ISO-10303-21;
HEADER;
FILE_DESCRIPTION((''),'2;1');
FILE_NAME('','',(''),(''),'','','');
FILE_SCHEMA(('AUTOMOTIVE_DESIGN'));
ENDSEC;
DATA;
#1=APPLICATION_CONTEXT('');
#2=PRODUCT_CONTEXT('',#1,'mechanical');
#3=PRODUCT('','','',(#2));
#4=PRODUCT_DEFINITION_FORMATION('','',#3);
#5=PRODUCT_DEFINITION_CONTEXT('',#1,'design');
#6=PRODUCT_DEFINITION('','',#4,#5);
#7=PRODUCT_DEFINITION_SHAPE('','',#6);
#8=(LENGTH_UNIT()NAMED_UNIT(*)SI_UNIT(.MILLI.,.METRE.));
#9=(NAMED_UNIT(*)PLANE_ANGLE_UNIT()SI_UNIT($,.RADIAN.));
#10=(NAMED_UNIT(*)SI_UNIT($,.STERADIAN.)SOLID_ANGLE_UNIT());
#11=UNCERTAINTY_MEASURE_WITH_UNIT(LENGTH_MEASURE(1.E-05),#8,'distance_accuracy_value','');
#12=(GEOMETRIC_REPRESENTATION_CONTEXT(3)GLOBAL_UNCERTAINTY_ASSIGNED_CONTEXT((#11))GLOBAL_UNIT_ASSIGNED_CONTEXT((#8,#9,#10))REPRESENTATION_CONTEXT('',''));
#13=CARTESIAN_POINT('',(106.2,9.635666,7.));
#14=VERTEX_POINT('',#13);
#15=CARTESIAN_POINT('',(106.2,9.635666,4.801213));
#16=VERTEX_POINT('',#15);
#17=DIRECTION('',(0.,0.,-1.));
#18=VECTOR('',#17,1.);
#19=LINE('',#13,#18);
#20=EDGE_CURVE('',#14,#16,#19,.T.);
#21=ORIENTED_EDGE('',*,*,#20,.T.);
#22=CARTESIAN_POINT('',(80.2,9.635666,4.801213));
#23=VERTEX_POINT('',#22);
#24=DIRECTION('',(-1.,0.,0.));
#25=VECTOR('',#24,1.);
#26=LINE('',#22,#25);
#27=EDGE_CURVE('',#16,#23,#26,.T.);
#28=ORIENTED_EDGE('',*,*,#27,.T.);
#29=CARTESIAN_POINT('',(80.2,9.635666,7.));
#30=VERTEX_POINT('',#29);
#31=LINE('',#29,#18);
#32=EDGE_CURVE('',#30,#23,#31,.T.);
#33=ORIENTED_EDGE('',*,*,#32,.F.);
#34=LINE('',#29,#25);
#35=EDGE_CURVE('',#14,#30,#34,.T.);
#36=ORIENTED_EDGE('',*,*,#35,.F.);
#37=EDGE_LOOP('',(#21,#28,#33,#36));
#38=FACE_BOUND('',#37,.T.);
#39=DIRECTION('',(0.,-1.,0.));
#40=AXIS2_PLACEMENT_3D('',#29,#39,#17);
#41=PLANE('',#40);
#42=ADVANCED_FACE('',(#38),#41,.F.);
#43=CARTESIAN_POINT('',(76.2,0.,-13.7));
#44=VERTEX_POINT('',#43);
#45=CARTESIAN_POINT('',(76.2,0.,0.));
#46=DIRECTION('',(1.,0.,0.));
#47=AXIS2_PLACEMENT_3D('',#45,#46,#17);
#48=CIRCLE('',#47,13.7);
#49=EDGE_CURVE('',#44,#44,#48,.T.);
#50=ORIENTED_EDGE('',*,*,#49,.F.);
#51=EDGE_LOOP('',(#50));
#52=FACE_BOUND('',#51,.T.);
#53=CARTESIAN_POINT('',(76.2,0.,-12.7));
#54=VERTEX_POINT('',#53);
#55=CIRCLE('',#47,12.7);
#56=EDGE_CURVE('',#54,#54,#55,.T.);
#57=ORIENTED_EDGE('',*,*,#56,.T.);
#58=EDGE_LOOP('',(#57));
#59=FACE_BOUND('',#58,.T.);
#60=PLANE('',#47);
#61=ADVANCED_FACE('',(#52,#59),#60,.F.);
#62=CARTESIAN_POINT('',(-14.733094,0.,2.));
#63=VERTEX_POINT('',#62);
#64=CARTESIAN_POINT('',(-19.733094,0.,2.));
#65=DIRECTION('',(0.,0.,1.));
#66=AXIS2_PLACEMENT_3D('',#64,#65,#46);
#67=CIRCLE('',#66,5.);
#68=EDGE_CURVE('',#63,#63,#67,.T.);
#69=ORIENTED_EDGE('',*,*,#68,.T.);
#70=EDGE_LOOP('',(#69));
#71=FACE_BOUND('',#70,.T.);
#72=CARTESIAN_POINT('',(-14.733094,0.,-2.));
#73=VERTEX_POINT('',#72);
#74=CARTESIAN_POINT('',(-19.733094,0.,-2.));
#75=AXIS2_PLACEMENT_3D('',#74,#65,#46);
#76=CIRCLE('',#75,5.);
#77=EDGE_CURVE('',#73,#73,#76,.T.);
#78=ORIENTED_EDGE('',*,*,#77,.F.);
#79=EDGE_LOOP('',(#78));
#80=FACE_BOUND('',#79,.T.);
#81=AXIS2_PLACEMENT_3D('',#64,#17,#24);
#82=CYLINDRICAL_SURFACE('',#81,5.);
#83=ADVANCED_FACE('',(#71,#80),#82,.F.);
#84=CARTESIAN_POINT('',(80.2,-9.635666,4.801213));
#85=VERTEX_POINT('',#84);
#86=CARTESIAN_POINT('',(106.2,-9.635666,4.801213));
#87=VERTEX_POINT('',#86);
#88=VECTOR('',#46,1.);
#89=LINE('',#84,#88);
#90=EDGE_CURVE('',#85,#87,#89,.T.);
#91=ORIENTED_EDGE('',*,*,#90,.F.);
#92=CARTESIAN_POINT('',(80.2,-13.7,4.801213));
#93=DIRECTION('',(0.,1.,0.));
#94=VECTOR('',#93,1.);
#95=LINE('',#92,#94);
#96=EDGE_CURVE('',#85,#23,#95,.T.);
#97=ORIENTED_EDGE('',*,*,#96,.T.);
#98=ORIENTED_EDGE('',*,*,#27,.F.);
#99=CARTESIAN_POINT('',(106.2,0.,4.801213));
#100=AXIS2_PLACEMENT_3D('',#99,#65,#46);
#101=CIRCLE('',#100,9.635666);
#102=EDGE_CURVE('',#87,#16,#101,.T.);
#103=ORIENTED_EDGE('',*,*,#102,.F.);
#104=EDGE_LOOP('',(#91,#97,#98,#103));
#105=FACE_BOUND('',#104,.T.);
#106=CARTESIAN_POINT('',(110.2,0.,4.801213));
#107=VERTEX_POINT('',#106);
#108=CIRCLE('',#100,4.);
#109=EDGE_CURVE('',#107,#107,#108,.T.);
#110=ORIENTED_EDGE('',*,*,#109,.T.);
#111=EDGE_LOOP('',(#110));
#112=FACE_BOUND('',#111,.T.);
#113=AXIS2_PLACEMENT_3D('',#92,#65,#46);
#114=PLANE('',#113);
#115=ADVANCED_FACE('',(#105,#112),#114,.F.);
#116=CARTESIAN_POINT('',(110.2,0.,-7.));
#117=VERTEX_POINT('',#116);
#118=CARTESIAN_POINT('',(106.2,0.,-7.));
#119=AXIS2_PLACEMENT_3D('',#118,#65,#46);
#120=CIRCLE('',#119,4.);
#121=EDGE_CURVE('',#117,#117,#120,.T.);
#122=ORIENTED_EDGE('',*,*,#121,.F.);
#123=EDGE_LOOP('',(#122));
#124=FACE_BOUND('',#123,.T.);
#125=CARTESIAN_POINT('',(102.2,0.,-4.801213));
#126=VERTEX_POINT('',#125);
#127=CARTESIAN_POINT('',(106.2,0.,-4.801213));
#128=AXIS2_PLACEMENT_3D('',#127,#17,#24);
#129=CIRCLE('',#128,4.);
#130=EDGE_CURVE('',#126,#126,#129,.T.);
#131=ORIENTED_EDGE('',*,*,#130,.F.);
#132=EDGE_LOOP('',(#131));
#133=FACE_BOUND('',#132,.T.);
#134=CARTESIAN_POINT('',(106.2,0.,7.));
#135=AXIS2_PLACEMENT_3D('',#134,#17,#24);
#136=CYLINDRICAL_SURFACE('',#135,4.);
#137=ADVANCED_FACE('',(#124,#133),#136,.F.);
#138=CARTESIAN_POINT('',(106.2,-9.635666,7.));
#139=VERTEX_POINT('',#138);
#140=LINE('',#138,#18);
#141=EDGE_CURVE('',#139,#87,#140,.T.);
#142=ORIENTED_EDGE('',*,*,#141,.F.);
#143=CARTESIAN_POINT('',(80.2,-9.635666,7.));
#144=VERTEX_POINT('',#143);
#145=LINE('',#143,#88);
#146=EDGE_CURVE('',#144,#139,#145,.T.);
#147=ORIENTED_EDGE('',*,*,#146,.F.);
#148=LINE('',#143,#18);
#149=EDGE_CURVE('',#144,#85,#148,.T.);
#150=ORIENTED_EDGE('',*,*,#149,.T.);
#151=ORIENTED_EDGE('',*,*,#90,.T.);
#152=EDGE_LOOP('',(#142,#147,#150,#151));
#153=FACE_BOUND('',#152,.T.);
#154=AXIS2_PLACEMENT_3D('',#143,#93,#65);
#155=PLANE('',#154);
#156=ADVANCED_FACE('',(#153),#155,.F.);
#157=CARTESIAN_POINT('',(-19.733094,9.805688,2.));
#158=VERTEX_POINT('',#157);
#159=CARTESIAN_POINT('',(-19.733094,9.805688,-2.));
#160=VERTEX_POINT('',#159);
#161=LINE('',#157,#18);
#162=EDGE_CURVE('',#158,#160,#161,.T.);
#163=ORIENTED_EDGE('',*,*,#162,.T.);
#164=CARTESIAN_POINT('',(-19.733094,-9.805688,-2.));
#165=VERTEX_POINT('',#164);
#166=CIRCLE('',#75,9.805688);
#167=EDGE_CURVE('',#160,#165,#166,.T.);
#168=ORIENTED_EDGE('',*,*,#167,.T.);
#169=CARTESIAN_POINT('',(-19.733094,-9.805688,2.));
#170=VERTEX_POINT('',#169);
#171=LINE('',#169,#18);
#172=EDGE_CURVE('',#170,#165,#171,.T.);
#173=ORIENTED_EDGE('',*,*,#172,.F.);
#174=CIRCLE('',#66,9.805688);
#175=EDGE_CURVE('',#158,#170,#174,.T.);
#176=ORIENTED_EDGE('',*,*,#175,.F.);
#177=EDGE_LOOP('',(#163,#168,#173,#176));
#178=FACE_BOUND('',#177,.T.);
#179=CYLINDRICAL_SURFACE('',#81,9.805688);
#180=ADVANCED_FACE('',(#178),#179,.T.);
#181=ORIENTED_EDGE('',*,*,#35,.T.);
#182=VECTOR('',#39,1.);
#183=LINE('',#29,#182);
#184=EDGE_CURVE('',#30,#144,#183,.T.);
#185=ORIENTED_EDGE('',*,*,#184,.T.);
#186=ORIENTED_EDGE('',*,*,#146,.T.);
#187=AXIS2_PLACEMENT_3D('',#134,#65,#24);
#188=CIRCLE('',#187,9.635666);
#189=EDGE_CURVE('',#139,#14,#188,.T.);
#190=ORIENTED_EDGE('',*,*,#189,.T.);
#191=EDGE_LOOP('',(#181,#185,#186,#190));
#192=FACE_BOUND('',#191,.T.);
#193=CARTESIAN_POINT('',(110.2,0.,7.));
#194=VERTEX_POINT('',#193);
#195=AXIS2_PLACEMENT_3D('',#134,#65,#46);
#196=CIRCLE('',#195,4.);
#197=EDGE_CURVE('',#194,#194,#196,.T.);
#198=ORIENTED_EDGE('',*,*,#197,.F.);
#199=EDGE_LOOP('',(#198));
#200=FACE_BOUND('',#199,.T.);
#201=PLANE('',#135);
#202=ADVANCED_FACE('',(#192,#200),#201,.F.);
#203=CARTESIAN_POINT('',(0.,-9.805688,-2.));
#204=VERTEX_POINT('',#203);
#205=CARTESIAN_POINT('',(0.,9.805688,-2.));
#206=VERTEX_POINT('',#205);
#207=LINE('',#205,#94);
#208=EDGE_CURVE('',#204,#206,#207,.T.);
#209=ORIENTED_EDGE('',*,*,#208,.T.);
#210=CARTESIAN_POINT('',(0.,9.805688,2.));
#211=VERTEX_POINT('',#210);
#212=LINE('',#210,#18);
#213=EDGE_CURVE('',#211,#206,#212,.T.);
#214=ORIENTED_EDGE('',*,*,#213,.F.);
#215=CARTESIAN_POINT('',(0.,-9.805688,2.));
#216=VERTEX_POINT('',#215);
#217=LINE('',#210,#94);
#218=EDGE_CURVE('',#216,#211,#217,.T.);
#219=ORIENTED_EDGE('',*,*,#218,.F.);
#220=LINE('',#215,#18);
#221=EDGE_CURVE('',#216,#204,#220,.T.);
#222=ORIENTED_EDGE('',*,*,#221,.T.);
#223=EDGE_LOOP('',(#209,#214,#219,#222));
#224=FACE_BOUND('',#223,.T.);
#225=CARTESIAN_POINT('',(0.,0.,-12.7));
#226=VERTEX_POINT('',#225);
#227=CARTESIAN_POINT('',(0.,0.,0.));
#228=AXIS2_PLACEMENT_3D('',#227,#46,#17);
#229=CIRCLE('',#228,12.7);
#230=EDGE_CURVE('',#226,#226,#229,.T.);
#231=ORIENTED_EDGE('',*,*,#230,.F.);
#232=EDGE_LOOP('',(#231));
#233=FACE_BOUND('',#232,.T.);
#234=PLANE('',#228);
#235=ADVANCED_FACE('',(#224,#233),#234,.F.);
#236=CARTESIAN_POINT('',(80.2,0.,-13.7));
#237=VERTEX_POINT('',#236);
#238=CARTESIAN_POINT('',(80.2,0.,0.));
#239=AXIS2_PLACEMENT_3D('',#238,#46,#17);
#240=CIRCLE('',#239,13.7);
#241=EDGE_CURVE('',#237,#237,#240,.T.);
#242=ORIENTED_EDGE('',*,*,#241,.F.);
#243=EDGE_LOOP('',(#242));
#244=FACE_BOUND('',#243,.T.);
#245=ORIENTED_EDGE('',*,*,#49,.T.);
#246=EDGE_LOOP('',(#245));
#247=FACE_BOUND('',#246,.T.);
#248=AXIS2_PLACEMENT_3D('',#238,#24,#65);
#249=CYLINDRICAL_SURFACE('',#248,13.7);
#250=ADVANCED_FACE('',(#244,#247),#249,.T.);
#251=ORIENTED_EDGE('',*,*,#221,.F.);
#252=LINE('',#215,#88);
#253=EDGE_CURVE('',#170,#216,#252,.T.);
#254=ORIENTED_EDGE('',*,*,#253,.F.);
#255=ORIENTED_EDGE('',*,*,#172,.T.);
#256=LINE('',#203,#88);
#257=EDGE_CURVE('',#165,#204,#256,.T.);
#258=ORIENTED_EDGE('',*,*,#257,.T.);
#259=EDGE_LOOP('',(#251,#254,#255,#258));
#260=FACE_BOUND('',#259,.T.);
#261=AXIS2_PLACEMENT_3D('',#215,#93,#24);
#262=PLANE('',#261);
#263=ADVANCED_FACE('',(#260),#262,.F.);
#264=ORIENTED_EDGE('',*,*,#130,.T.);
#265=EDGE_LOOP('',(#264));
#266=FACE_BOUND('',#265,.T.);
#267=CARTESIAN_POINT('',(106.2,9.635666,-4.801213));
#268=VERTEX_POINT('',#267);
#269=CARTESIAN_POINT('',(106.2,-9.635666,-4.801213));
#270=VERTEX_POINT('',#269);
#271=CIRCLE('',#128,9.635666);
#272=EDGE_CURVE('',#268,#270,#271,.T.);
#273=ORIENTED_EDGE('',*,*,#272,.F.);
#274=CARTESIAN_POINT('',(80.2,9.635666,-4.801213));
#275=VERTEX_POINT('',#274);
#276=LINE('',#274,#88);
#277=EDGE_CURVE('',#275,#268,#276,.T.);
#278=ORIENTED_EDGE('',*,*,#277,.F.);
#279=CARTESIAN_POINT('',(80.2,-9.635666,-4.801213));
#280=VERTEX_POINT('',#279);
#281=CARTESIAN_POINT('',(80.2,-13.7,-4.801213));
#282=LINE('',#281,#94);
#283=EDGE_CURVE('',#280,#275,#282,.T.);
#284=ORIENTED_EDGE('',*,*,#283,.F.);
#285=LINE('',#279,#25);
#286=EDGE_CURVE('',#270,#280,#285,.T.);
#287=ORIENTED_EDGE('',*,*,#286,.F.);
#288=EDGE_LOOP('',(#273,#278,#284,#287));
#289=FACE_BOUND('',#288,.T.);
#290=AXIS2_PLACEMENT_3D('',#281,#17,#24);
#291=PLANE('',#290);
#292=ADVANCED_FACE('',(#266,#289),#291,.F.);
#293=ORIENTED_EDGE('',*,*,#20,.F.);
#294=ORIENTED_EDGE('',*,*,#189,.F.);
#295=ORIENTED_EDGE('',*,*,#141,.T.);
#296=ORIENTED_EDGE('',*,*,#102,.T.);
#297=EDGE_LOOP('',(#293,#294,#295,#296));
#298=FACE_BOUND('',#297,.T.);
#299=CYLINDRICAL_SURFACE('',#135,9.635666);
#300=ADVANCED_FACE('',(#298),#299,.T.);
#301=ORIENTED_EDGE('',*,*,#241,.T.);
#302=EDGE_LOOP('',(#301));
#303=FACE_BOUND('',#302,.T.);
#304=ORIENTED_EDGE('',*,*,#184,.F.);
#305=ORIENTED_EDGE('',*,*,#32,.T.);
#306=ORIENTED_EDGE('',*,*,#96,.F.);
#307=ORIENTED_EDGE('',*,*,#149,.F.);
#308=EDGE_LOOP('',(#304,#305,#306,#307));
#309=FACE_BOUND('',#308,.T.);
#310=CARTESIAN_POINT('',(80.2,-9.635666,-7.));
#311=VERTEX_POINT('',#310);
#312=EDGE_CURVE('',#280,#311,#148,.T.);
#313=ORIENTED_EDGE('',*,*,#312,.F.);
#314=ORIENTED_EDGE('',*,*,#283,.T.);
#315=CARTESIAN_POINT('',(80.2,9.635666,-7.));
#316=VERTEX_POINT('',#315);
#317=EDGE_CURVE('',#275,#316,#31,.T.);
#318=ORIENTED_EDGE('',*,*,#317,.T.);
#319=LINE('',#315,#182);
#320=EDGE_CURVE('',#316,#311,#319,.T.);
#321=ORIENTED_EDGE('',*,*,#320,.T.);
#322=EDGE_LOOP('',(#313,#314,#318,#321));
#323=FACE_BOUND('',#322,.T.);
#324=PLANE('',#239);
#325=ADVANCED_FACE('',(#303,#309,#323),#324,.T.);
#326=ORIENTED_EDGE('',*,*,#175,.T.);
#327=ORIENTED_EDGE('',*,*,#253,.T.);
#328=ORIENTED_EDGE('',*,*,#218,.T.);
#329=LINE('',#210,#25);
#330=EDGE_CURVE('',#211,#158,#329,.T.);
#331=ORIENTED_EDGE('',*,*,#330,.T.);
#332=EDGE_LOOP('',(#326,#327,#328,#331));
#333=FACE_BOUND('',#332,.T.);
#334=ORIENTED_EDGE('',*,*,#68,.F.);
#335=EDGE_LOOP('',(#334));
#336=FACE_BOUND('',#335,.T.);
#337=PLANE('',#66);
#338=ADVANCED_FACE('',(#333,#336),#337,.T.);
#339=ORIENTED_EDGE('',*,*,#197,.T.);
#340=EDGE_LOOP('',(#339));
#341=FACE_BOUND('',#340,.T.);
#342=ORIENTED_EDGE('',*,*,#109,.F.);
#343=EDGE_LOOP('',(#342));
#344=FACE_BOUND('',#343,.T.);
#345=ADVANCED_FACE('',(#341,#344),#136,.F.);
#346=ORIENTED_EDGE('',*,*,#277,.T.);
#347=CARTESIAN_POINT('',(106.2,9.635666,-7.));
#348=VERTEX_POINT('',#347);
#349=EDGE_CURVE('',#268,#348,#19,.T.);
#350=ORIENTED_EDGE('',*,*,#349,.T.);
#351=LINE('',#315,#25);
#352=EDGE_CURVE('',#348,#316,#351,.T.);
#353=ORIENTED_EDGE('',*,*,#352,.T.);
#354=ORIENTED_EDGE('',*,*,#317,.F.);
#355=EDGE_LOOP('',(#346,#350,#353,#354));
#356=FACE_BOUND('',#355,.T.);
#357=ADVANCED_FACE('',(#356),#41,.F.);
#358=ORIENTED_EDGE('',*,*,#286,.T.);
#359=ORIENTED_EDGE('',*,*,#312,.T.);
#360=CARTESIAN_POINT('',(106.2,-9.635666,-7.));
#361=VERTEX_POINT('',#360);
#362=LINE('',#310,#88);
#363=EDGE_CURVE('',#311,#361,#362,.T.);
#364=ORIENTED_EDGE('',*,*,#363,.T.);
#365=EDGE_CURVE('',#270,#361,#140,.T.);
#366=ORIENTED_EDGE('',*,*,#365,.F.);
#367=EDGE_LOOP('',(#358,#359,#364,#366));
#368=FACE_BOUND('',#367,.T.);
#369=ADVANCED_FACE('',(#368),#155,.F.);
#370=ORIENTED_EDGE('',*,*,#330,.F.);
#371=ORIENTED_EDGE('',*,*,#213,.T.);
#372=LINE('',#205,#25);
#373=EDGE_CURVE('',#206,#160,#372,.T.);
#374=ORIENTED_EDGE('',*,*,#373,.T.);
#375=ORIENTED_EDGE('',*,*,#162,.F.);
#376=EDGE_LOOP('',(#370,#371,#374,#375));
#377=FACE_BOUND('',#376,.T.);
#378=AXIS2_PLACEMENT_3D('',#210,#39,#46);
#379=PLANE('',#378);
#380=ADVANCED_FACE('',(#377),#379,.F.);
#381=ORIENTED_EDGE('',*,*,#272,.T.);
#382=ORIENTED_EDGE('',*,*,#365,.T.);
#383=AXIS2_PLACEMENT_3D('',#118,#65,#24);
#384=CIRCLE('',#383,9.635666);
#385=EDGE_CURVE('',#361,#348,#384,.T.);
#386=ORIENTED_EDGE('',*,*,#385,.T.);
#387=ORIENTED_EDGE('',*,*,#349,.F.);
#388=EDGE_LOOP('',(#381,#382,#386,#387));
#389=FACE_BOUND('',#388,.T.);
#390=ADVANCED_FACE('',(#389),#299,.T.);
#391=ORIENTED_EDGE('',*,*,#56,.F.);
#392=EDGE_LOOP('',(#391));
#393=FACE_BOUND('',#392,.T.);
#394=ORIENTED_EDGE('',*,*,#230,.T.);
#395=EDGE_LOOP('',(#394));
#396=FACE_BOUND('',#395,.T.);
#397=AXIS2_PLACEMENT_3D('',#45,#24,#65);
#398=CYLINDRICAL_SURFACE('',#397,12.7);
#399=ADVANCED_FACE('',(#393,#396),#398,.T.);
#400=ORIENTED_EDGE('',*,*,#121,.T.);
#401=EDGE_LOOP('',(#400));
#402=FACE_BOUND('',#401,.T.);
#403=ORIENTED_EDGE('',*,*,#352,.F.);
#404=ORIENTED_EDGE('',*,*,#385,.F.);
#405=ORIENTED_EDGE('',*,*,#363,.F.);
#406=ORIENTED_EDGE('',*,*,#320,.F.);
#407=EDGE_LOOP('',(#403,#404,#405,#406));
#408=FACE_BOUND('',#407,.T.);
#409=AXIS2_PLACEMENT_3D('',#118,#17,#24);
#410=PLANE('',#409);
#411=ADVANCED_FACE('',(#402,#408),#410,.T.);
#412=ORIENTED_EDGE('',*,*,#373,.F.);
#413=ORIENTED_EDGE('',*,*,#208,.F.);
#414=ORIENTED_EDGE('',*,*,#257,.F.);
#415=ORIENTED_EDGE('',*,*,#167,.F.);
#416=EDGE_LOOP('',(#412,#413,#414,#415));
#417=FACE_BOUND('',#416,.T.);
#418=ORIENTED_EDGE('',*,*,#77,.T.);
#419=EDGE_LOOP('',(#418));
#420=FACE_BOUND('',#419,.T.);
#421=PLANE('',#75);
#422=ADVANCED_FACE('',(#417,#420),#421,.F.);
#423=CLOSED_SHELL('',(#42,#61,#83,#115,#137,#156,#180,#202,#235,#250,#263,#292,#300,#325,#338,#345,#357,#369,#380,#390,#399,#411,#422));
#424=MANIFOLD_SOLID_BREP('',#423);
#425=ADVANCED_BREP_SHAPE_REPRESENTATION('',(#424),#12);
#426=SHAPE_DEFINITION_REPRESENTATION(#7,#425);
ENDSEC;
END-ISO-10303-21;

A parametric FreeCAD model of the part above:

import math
import FreeCAD as App
import Part
import Sketcher
Q = App.Units.Quantity


def add_polygon(sketch, points):
    """Adds a closed chain of lines whose ends are joined by coincident constraints."""
    first, n = sketch.GeometryCount, len(points)
    for a, b in zip(points, points[1:] + points[:1]):
        sketch.addGeometry(Part.LineSegment(App.Vector(*a, 0), App.Vector(*b, 0)), False)
    for i in range(n):
        sketch.addConstraint(Sketcher.Constraint("Coincident", first + i, 2, first + (i + 1) % n, 1))

doc = App.newDocument("Part")
body = doc.addObject("PartDesign::Body", "Body")

sketch1 = body.newObject("Sketcher::SketchObject", "Sketch")
sketch1.AttachmentSupport = (doc.getObject("YZ_Plane"), [""])
sketch1.MapMode = "FlatFace"
sketch1.addGeometry(Part.Circle(App.Vector(0, 0, 0), App.Vector(0, 0, 1), 12.7), False)
sketch1.addConstraint(Sketcher.Constraint("Coincident", 0, 3, -1, 1))
sketch1.addConstraint(Sketcher.Constraint("Diameter", 0, Q("25.4 mm")))
pad1 = body.newObject("PartDesign::Pad", "Pad")
pad1.Profile = sketch1
pad1.Length = 76.2

sketch2 = body.newObject("Sketcher::SketchObject", "Sketch001")
sketch2.AttachmentSupport = (doc.getObject("XY_Plane"), [""])
sketch2.MapMode = "FlatFace"
sketch2.addGeometry(Part.LineSegment(App.Vector(0, 9.805688, 0), App.Vector(-19.733094, 9.805688, 0)), False)
sketch2.addGeometry(Part.ArcOfCircle(Part.Circle(App.Vector(-19.733094, 0, 0), App.Vector(0, 0, 1), 9.805688), math.radians(90), math.radians(270)), False)
sketch2.addGeometry(Part.LineSegment(App.Vector(-19.733094, -9.805688, 0), App.Vector(0, -9.805688, 0)), False)
sketch2.addGeometry(Part.LineSegment(App.Vector(0, -9.805688, 0), App.Vector(0, 9.805688, 0)), False)
sketch2.addGeometry(Part.Circle(App.Vector(-19.733094, 0, 0), App.Vector(0, 0, 1), 5), False)
sketch2.addConstraint(Sketcher.Constraint("Tangent", 0, 2, 1, 1))
sketch2.addConstraint(Sketcher.Constraint("Tangent", 1, 2, 2, 1))
sketch2.addConstraint(Sketcher.Constraint("Coincident", 2, 2, 3, 1))
sketch2.addConstraint(Sketcher.Constraint("Coincident", 3, 2, 0, 1))
sketch2.addConstraint(Sketcher.Constraint("Horizontal", 0))
sketch2.addConstraint(Sketcher.Constraint("Horizontal", 2))
sketch2.addConstraint(Sketcher.Constraint("Vertical", 3))
sketch2.addConstraint(Sketcher.Constraint("Coincident", 4, 3, 1, 3))
sketch2.addConstraint(Sketcher.Constraint("Symmetric", 2, 2, 3, 2, -1, 1))
sketch2.addConstraint(Sketcher.Constraint("Diameter", 4, Q("10 mm")))
sketch2.addConstraint(Sketcher.Constraint("Radius", 1, Q("9.805688 mm")))
sketch2.addConstraint(Sketcher.Constraint("DistanceX", 0, 2, 0, 1, Q("19.733094 mm")))
pad2 = body.newObject("PartDesign::Pad", "Pad001")
pad2.Profile = sketch2
pad2.Length = 4
pad2.Midplane = True

sketch3 = body.newObject("Sketcher::SketchObject", "Sketch002")
sketch3.AttachmentSupport = (doc.getObject("YZ_Plane"), [""])
sketch3.MapMode = "FlatFace"
sketch3.AttachmentOffset = App.Placement(App.Vector(0, 0, 76.2), App.Rotation())
sketch3.addGeometry(Part.Circle(App.Vector(0, 0, 0), App.Vector(0, 0, 1), 13.7), False)
sketch3.addConstraint(Sketcher.Constraint("Coincident", 0, 3, -1, 1))
sketch3.addConstraint(Sketcher.Constraint("Diameter", 0, Q("27.4 mm")))
pad3 = body.newObject("PartDesign::Pad", "Pad002")
pad3.Profile = sketch3
pad3.Length = 4

sketch4 = body.newObject("Sketcher::SketchObject", "Sketch003")
sketch4.AttachmentSupport = (doc.getObject("XY_Plane"), [""])
sketch4.MapMode = "FlatFace"
sketch4.addGeometry(Part.LineSegment(App.Vector(106.2, 9.635666, 0), App.Vector(80.2, 9.635666, 0)), False)
sketch4.addGeometry(Part.LineSegment(App.Vector(80.2, 9.635666, 0), App.Vector(80.2, -9.635666, 0)), False)
sketch4.addGeometry(Part.LineSegment(App.Vector(80.2, -9.635666, 0), App.Vector(106.2, -9.635666, 0)), False)
sketch4.addGeometry(Part.ArcOfCircle(Part.Circle(App.Vector(106.2, 0, 0), App.Vector(0, 0, 1), 9.635666), math.radians(-90), math.radians(90)), False)
sketch4.addGeometry(Part.Circle(App.Vector(106.2, 0, 0), App.Vector(0, 0, 1), 4), False)
sketch4.addConstraint(Sketcher.Constraint("Coincident", 0, 2, 1, 1))
sketch4.addConstraint(Sketcher.Constraint("Coincident", 1, 2, 2, 1))
sketch4.addConstraint(Sketcher.Constraint("Tangent", 2, 2, 3, 1))
sketch4.addConstraint(Sketcher.Constraint("Tangent", 3, 2, 0, 1))
sketch4.addConstraint(Sketcher.Constraint("Horizontal", 0))
sketch4.addConstraint(Sketcher.Constraint("Vertical", 1))
sketch4.addConstraint(Sketcher.Constraint("Horizontal", 2))
sketch4.addConstraint(Sketcher.Constraint("Coincident", 4, 3, 3, 3))
sketch4.addConstraint(Sketcher.Constraint("PointOnObject", 3, 3, -1))
sketch4.addConstraint(Sketcher.Constraint("Diameter", 4, Q("8 mm")))
sketch4.addConstraint(Sketcher.Constraint("DistanceX", 0, 2, 0, 1, Q("26 mm")))
sketch4.addConstraint(Sketcher.Constraint("DistanceX", -1, 1, 3, 3, Q("106.2 mm")))
sketch4.addConstraint(Sketcher.Constraint("Radius", 3, Q("9.635666 mm")))
pad4 = body.newObject("PartDesign::Pad", "Pad003")
pad4.Profile = sketch4
pad4.Length = 14
pad4.Midplane = True

sketch5 = body.newObject("Sketcher::SketchObject", "Sketch004")
sketch5.AttachmentSupport = (doc.getObject("XZ_Plane"), [""])
sketch5.MapMode = "FlatFace"
add_polygon(sketch5, [(80.2, -4.801213), (80.2, 4.801213), (359.727972, 4.801213), (359.727972, -4.801213)])
sketch5.addConstraint(Sketcher.Constraint("Vertical", 0))
sketch5.addConstraint(Sketcher.Constraint("Horizontal", 1))
sketch5.addConstraint(Sketcher.Constraint("Vertical", 2))
sketch5.addConstraint(Sketcher.Constraint("Horizontal", 3))
sketch5.addConstraint(Sketcher.Constraint("DistanceX", -1, 1, 0, 2, Q("80.2 mm")))
sketch5.addConstraint(Sketcher.Constraint("DistanceX", 1, 1, 1, 2, Q("279.527972 mm")))
sketch5.addConstraint(Sketcher.Constraint("DistanceY", 0, 1, 0, 2, Q("9.602426 mm")))
sketch5.addConstraint(Sketcher.Constraint("DistanceY", -1, 1, 0, 2, Q("4.801213 mm")))
pocket1 = body.newObject("PartDesign::Pocket", "Pocket")
pocket1.Profile = sketch5
pocket1.Type = "ThroughAll"
pocket1.Midplane = True

doc.recompute()
